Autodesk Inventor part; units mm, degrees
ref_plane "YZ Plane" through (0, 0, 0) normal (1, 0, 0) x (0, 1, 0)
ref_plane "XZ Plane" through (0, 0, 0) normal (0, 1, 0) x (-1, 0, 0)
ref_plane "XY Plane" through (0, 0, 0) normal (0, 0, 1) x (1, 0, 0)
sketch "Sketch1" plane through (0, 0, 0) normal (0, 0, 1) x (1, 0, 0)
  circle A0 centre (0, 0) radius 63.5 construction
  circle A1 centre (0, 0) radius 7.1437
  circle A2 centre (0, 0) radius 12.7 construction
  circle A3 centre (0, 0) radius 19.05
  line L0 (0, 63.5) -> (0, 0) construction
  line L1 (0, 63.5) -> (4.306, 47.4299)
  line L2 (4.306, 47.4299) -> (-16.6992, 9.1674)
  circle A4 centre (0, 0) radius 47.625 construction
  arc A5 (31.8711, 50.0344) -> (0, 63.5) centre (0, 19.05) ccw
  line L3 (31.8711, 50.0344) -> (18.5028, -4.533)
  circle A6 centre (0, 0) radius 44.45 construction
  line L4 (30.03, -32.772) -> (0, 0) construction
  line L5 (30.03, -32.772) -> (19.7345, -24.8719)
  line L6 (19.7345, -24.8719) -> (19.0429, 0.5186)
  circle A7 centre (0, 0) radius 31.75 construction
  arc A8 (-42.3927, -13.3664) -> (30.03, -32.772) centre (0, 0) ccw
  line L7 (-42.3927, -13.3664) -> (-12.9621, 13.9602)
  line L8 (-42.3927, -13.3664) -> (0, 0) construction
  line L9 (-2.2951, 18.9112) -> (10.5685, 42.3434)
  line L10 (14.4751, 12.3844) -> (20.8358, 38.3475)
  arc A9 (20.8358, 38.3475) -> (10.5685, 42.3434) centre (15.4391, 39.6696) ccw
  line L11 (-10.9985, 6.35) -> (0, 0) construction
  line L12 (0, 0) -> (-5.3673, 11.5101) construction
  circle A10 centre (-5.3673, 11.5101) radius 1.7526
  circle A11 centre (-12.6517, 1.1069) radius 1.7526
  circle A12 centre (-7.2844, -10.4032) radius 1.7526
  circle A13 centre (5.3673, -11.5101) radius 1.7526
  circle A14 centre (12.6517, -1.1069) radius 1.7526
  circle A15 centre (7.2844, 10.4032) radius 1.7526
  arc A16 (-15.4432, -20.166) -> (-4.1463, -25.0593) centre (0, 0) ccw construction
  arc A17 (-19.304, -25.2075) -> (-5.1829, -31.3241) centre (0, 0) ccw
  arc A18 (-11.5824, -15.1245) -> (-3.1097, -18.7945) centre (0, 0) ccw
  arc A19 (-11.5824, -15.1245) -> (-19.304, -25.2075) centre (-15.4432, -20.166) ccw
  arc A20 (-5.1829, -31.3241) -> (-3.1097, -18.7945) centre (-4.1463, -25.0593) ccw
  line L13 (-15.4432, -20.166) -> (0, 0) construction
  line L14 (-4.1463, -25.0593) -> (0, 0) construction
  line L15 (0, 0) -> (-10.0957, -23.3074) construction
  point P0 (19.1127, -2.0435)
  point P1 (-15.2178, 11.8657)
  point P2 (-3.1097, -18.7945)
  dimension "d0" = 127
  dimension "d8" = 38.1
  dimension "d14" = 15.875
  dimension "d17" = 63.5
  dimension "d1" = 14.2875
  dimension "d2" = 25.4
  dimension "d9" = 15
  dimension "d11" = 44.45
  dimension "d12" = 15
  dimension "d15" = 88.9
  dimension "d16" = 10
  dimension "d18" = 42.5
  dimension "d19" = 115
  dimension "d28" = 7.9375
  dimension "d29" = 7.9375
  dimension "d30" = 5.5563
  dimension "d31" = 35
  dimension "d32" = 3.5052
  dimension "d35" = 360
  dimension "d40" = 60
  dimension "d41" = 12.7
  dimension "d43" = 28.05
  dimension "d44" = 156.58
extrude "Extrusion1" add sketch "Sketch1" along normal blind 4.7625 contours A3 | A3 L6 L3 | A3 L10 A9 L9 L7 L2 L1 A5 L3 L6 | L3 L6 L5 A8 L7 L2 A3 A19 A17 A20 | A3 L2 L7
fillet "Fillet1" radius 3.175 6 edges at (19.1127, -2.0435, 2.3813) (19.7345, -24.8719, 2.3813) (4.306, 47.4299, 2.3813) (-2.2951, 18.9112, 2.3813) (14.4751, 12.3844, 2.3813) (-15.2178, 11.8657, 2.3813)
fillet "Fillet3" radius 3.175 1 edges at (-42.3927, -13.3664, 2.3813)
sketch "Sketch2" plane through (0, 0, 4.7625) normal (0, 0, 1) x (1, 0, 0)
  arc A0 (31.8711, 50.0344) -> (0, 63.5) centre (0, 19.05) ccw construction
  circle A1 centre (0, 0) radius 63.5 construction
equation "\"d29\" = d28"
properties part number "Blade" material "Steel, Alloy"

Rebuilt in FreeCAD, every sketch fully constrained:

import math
import FreeCAD as App
import Part
import Sketcher
from FreeCAD import Vector
Q = App.Units.Quantity


def edges_at(feature, points):
    """Names of the edges that pass closest to the given points."""
    edges = feature.Shape.Edges
    near = lambda p: min(range(len(edges)), key=lambda i: edges[i].distToShape(Part.Vertex(*p))[0])
    return sorted({f"Edge{near(p) + 1}" for p in points})

doc = App.newDocument("Part")
params = doc.addObject("Spreadsheet::Sheet", "Params")
for row, (alias, value) in enumerate([
    ("sketch1_radius", "1.75 in"),
    ("sketch1_radius2", "0.75 in"),
    ("sketch1_radius3", "0.25 in"),
    ("sketch1_diameter", "0.138 in"),
    ("sketch1_diameter2", "0.5625 in"),
    ("pad1_length", "0.1875 in"),
    ("fillet_radius", "0.125 in"),
    ("fillet2_radius", "0.125 in"),
], start=1):
    params.set(f"A{row}", alias)
    params.set(f"B{row}", "=" + value)
    params.setAlias(f"B{row}", alias)

body = doc.addObject("PartDesign::Body", "Body")

# Sketch on XY plane
sketch1 = body.newObject("Sketcher::SketchObject", "Sketch")
sketch1.AttachmentSupport = (doc.getObject("XY_Plane"), [""])
sketch1.MapMode = "FlatFace"
sketch1.addGeometry([
    Part.LineSegment(Vector(19.7, -24.9, 0), Vector(19.1, -2, 0)),  # 0
    Part.LineSegment(Vector(19.1, -2, 0), Vector(31.9, 50, 0)),  # 1
    Part.ArcOfCircle(Part.Circle(Vector(0, 19.1, 0), Vector(0, 0, 1), 44.4), math.radians(44), math.radians(90)),  # 2
    Part.LineSegment(Vector(0, 63.5, 0), Vector(4.3, 47.4, 0)),  # 3
    Part.LineSegment(Vector(4.3, 47.4, 0), Vector(-15.2, 11.9, 0)),  # 4
    Part.LineSegment(Vector(-15.2, 11.9, 0), Vector(-42.4, -13.4, 0)),  # 5
    Part.ArcOfCircle(Part.Circle(Vector(0, 0, 0), Vector(0, 0, 1), 44.5), math.radians(-162), math.radians(-48)),  # 6
    Part.LineSegment(Vector(30, -32.8, 0), Vector(19.7, -24.9, 0)),  # 7
    Part.ArcOfCircle(Part.Circle(Vector(0, 0, 0), Vector(0, 0, 1), 19.1), math.radians(-127), math.radians(-99)),  # 8
    Part.ArcOfCircle(Part.Circle(Vector(-4.1, -25.1, 0), Vector(0, 0, 1), 6.3), math.radians(-99), math.radians(81)),  # 9
    Part.ArcOfCircle(Part.Circle(Vector(0, 0, 0), Vector(0, 0, 1), 31.7), math.radians(-127), math.radians(-99)),  # 10
    Part.ArcOfCircle(Part.Circle(Vector(-15.4, -20.2, 0), Vector(0, 0, 1), 6.3), math.radians(53), math.radians(233)),  # 11
    Part.ArcOfCircle(Part.Circle(Vector(0, 0, 0), Vector(0, 0, 1), 19.1), math.radians(41), math.radians(97)),  # 12
    Part.LineSegment(Vector(-2.3, 18.9, 0), Vector(10.6, 42.3, 0)),  # 13
    Part.ArcOfCircle(Part.Circle(Vector(15.4, 39.7, 0), Vector(0, 0, 1), 5.6), math.radians(-14), math.radians(151)),  # 14
    Part.LineSegment(Vector(20.8, 38.3, 0), Vector(14.5, 12.4, 0)),  # 15
    Part.Circle(Vector(-7.3, -10.4, 0), Vector(0, 0, 1), 1.8),  # 16
    Part.Circle(Vector(-12.7, 1.1, 0), Vector(0, 0, 1), 1.8),  # 17
    Part.Circle(Vector(5.4, -11.5, 0), Vector(0, 0, 1), 1.8),  # 18
    Part.Circle(Vector(0, 0, 0), Vector(0, 0, 1), 7.1),  # 19
    Part.Circle(Vector(12.7, -1.1, 0), Vector(0, 0, 1), 1.8),  # 20
    Part.Circle(Vector(-5.4, 11.5, 0), Vector(0, 0, 1), 1.8),  # 21
    Part.Circle(Vector(7.3, 10.4, 0), Vector(0, 0, 1), 1.8),  # 22
], False)
sketch1.addConstraint([
    Sketcher.Constraint("Coincident", 0, 2, 1, 1),
    Sketcher.Constraint("Coincident", 1, 2, 2, 1),
    Sketcher.Constraint("Coincident", 2, 2, 3, 1),
    Sketcher.Constraint("Coincident", 3, 2, 4, 1),
    Sketcher.Constraint("Coincident", 4, 2, 5, 1),
    Sketcher.Constraint("Coincident", 5, 2, 6, 1),
    Sketcher.Constraint("Coincident", 6, 2, 7, 1),
    Sketcher.Constraint("Coincident", 7, 2, 0, 1),
    Sketcher.Constraint("Tangent", 8, 2, 9, 2),
    Sketcher.Constraint("Tangent", 9, 1, 10, 2),
    Sketcher.Constraint("Tangent", 10, 1, 11, 2),
    Sketcher.Constraint("Tangent", 11, 1, 8, 1),
    Sketcher.Constraint("Coincident", 12, 2, 13, 1),
    Sketcher.Constraint("Tangent", 13, 2, 14, 2),
    Sketcher.Constraint("Tangent", 14, 1, 15, 1),
    Sketcher.Constraint("Coincident", 15, 2, 12, 1),
    Sketcher.Constraint("Coincident", 6, 3, -1, 1),
    Sketcher.Constraint("Coincident", 8, 3, -1, 1),
    Sketcher.Constraint("Coincident", 10, 3, -1, 1),
    Sketcher.Constraint("Coincident", 12, 3, -1, 1),
    Sketcher.Constraint("Coincident", 19, 3, -1, 1),
    Sketcher.Constraint("Equal", 2, 6),
    Sketcher.Constraint("Equal", 8, 12),
    Sketcher.Constraint("Equal", 16, 17),
    Sketcher.Constraint("Equal", 17, 18),
    Sketcher.Constraint("Equal", 18, 20),
    Sketcher.Constraint("Equal", 20, 21),
    Sketcher.Constraint("Equal", 21, 22),
    Sketcher.Constraint("Symmetric", 17, 3, 20, 3, -1, 1),
    Sketcher.Constraint("Symmetric", 18, 3, 21, 3, -1, 1),
    Sketcher.Constraint("Symmetric", 16, 3, 22, 3, -1, 1),
    Sketcher.Constraint("PointOnObject", 2, 3, -2),
    Sketcher.Constraint("PointOnObject", 2, 2, -2),
    Sketcher.Constraint("Parallel", 4, 13),
    Sketcher.Constraint("Parallel", 1, 15),
    Sketcher.Constraint("Equal", 13, 15),
    Sketcher.Constraint("Radius", 2, Q("1.75 in")),
    Sketcher.Constraint("Radius", 8, Q("0.75 in")),
    Sketcher.Constraint("Radius", 9, Q("0.25 in")),
    Sketcher.Constraint("Diameter", 16, Q("0.138 in")),
    Sketcher.Constraint("Diameter", 19, Q("0.5625 in")),
    Sketcher.Constraint("Radius", 14, Q("0.218752 in")),
    Sketcher.Constraint("DistanceY", -1, 1, 2, 2, Q("2.5 in")),
    Sketcher.Constraint("Angle", 3, Q("-75 deg")),
    Sketcher.Constraint("Angle", 7, Q("142.4997 deg")),
    Sketcher.Constraint("DistanceX", 10, 1, -1, 1, Q("0.76 in")),
    Sketcher.Constraint("Angle", 0, Q("91.5603 deg")),
    Sketcher.Constraint("Distance", 3, Q("0.655 in")),
    Sketcher.Constraint("DistanceX", 5, 2, -1, 1, Q("1.669 in")),
    Sketcher.Constraint("DistanceY", 21, 3, 4, 2, Q("0.014 in")),
    Sketcher.Constraint("DistanceY", 11, 3, 8, 2, Q("0.054 in")),
    Sketcher.Constraint("DistanceY", 22, 3, 15, 2, Q("0.078 in")),
    Sketcher.Constraint("Distance", 0, Q("0.8991 in")),
    Sketcher.Constraint("Distance", 13, Q("1.0524 in")),
    Sketcher.Constraint("DistanceY", -1, 1, 14, 3, Q("1.5618 in")),
    Sketcher.Constraint("DistanceX", 17, 3, -1, 1, Q("0.4981 in")),
    Sketcher.Constraint("DistanceX", -1, 1, 18, 3, Q("0.2113 in")),
    Sketcher.Constraint("DistanceY", 7, 2, -1, 1, Q("0.9792 in")),
    Sketcher.Constraint("DistanceX", -1, 1, 14, 1, Q("0.8203 in")),
    Sketcher.Constraint("DistanceX", 17, 3, 16, 3, Q("0.2113 in")),
    Sketcher.Constraint("DistanceY", 18, 3, 0, 2, Q("0.3727 in")),
    Sketcher.Constraint("DistanceY", 21, 3, 1, 2, Q("1.5167 in")),
    Sketcher.Constraint("DistanceY", -1, 1, 17, 3, Q("1.107 mm")),
])
sketch1.setExpression("Constraints[36]", "Params.sketch1_radius")
sketch1.setExpression("Constraints[37]", "Params.sketch1_radius2")
sketch1.setExpression("Constraints[38]", "Params.sketch1_radius3")
sketch1.setExpression("Constraints[39]", "Params.sketch1_diameter")
sketch1.setExpression("Constraints[40]", "Params.sketch1_diameter2")
pad1 = body.newObject("PartDesign::Pad", "Pad")
pad1.Profile = sketch1
pad1.setExpression("Length", "Params.pad1_length")
doc.recompute()

fillet = body.newObject("PartDesign::Fillet", "Fillet")
fillet.Base = (pad1, edges_at(pad1, [
    (19.113, -2.043, 2.381),
    (19.735, -24.872, 2.381),
    (4.306, 47.43, 2.381),
    (-2.295, 18.911, 2.381),
    (14.475, 12.384, 2.381),
    (-15.218, 11.866, 2.381),
]))
fillet.setExpression("Radius", "Params.fillet_radius")
doc.recompute()

fillet2 = body.newObject("PartDesign::Fillet", "Fillet001")
fillet2.Base = (fillet, edges_at(fillet, [(-42.393, -13.366, 2.381)]))
fillet2.setExpression("Radius", "Params.fillet2_radius")

doc.recompute()
